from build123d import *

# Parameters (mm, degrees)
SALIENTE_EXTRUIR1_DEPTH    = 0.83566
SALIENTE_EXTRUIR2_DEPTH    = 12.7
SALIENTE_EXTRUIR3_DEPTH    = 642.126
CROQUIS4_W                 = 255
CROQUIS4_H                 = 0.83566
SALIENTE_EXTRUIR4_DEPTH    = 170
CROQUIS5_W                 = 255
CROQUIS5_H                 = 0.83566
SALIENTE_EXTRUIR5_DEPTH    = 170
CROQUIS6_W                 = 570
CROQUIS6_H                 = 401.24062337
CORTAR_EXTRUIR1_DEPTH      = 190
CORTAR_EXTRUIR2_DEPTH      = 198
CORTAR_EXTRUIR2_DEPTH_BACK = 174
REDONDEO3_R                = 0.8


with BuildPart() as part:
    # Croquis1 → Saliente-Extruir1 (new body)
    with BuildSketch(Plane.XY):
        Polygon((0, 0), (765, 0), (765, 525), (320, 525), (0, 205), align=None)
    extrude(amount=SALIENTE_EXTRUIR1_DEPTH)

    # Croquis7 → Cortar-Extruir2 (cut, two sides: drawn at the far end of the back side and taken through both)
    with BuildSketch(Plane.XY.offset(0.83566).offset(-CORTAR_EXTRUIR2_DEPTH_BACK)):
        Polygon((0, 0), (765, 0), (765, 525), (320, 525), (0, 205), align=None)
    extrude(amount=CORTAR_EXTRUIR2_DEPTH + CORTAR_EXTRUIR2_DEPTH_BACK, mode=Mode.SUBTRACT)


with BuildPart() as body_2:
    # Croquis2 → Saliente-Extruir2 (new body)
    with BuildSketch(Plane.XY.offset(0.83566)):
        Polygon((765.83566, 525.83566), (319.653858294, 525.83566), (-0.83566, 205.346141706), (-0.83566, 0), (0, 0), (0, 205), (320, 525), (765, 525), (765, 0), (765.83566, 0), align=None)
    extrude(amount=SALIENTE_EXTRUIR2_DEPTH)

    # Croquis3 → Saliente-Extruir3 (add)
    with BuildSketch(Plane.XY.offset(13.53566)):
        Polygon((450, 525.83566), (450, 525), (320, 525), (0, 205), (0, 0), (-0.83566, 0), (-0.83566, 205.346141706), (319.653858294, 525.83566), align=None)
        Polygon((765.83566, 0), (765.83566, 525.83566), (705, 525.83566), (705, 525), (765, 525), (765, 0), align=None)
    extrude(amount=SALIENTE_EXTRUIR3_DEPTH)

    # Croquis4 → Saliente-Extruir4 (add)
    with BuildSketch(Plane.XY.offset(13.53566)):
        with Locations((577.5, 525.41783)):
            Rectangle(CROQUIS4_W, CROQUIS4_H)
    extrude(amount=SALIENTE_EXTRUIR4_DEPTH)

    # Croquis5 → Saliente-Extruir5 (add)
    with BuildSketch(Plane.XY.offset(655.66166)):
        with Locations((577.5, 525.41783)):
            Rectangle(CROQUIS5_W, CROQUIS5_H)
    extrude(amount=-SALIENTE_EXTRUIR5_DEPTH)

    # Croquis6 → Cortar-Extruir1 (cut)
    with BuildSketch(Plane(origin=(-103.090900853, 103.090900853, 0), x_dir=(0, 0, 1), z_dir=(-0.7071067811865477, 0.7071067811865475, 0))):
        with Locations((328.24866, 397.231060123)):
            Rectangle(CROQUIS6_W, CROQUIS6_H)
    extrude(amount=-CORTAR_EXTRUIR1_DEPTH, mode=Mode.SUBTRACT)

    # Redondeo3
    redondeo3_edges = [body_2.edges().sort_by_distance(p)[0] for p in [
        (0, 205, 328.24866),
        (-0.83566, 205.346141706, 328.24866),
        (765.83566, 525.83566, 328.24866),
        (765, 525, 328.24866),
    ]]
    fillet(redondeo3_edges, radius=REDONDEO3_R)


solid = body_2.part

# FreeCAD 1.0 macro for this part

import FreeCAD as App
import Part
import Sketcher
from FreeCAD import Vector
Q = App.Units.Quantity


def edges_at(feature, points):
    """Names of the edges that pass closest to the given points."""
    edges = feature.Shape.Edges
    near = lambda p: min(range(len(edges)), key=lambda i: edges[i].distToShape(Part.Vertex(*p))[0])
    return sorted({f"Edge{near(p) + 1}" for p in points})

doc = App.newDocument("Part")
body = doc.addObject("PartDesign::Body", "Body")

# Sketch on XY plane
sketch1 = body.newObject("Sketcher::SketchObject", "Sketch")
sketch1.AttachmentSupport = (doc.getObject("XY_Plane"), [""])
sketch1.MapMode = "FlatFace"
sketch1.addGeometry([
    Part.LineSegment(Vector(0, 0, 0), Vector(765, 0, 0)),  # 0
    Part.LineSegment(Vector(765, 0, 0), Vector(765, 525, 0)),  # 1
    Part.LineSegment(Vector(765, 525, 0), Vector(320, 525, 0)),  # 2
    Part.LineSegment(Vector(320, 525, 0), Vector(0, 205, 0)),  # 3
    Part.LineSegment(Vector(0, 205, 0), Vector(0, 0, 0)),  # 4
], False)
sketch1.addConstraint([
    Sketcher.Constraint("Coincident", 0, 2, 1, 1),
    Sketcher.Constraint("Coincident", 1, 2, 2, 1),
    Sketcher.Constraint("Coincident", 2, 2, 3, 1),
    Sketcher.Constraint("Coincident", 3, 2, 4, 1),
    Sketcher.Constraint("Coincident", 4, 2, 0, 1),
    Sketcher.Constraint("Horizontal", 0),
    Sketcher.Constraint("Vertical", 1),
    Sketcher.Constraint("Horizontal", 2),
    Sketcher.Constraint("Vertical", 4),
    Sketcher.Constraint("Coincident", 4, 2, -1, 1),
    Sketcher.Constraint("DistanceX", 0, 1, 0, 2, Q("765 mm")),
    Sketcher.Constraint("DistanceX", 2, 2, 2, 1, Q("445 mm")),
    Sketcher.Constraint("DistanceY", 1, 1, 1, 2, Q("525 mm")),
    Sketcher.Constraint("DistanceY", 4, 2, 4, 1, Q("205 mm")),
])
pad1 = body.newObject("PartDesign::Pad", "Pad")
pad1.Profile = sketch1
pad1.Length = 0.83566

# Sketch on XY plane
sketch2 = body.newObject("Sketcher::SketchObject", "Sketch001")
sketch2.AttachmentSupport = (doc.getObject("XY_Plane"), [""])
sketch2.MapMode = "FlatFace"
sketch2.AttachmentOffset = App.Placement(Vector(0, 0, 0.83566), App.Rotation())
sketch2.addGeometry([
    Part.LineSegment(Vector(0, 0, 0), Vector(765, 0, 0)),  # 0
    Part.LineSegment(Vector(765, 0, 0), Vector(765, 525, 0)),  # 1
    Part.LineSegment(Vector(765, 525, 0), Vector(320, 525, 0)),  # 2
    Part.LineSegment(Vector(320, 525, 0), Vector(0, 205, 0)),  # 3
    Part.LineSegment(Vector(0, 205, 0), Vector(0, 0, 0)),  # 4
], False)
sketch2.addConstraint([
    Sketcher.Constraint("Coincident", 0, 2, 1, 1),
    Sketcher.Constraint("Coincident", 1, 2, 2, 1),
    Sketcher.Constraint("Coincident", 2, 2, 3, 1),
    Sketcher.Constraint("Coincident", 3, 2, 4, 1),
    Sketcher.Constraint("Coincident", 4, 2, 0, 1),
    Sketcher.Constraint("Horizontal", 0),
    Sketcher.Constraint("Vertical", 1),
    Sketcher.Constraint("Horizontal", 2),
    Sketcher.Constraint("Vertical", 4),
    Sketcher.Constraint("Coincident", 4, 2, -1, 1),
    Sketcher.Constraint("DistanceX", 0, 1, 0, 2, Q("765 mm")),
    Sketcher.Constraint("DistanceX", 2, 2, 2, 1, Q("445 mm")),
    Sketcher.Constraint("DistanceY", 1, 1, 1, 2, Q("525 mm")),
    Sketcher.Constraint("DistanceY", 4, 2, 4, 1, Q("205 mm")),
])
pocket1 = body.newObject("PartDesign::Pocket", "Pocket")
pocket1.Profile = sketch2
pocket1.Type = "ThroughAll"
pocket1.Midplane = True
body2 = doc.addObject("PartDesign::Body", "Body001")

# Sketch on XY plane
sketch3 = body2.newObject("Sketcher::SketchObject", "Sketch002")
sketch3.AttachmentSupport = (doc.getObject("XY_Plane001"), [""])
sketch3.MapMode = "FlatFace"
sketch3.AttachmentOffset = App.Placement(Vector(0, 0, 0.83566), App.Rotation())
sketch3.addGeometry([
    Part.LineSegment(Vector(765.8, 525.8, 0), Vector(319.7, 525.8, 0)),  # 0
    Part.LineSegment(Vector(319.7, 525.8, 0), Vector(-0.8, 205.3, 0)),  # 1
    Part.LineSegment(Vector(-0.8, 205.3, 0), Vector(-0.8, 0, 0)),  # 2
    Part.LineSegment(Vector(-0.8, 0, 0), Vector(0, 0, 0)),  # 3
    Part.LineSegment(Vector(0, 0, 0), Vector(0, 205, 0)),  # 4
    Part.LineSegment(Vector(0, 205, 0), Vector(320, 525, 0)),  # 5
    Part.LineSegment(Vector(320, 525, 0), Vector(765, 525, 0)),  # 6
    Part.LineSegment(Vector(765, 525, 0), Vector(765, 0, 0)),  # 7
    Part.LineSegment(Vector(765, 0, 0), Vector(765.8, 0, 0)),  # 8
    Part.LineSegment(Vector(765.8, 0, 0), Vector(765.8, 525.8, 0)),  # 9
], False)
sketch3.addConstraint([
    Sketcher.Constraint("Coincident", 0, 2, 1, 1),
    Sketcher.Constraint("Coincident", 1, 2, 2, 1),
    Sketcher.Constraint("Coincident", 2, 2, 3, 1),
    Sketcher.Constraint("Coincident", 3, 2, 4, 1),
    Sketcher.Constraint("Coincident", 4, 2, 5, 1),
    Sketcher.Constraint("Coincident", 5, 2, 6, 1),
    Sketcher.Constraint("Coincident", 6, 2, 7, 1),
    Sketcher.Constraint("Coincident", 7, 2, 8, 1),
    Sketcher.Constraint("Coincident", 8, 2, 9, 1),
    Sketcher.Constraint("Coincident", 9, 2, 0, 1),
    Sketcher.Constraint("Horizontal", 0),
    Sketcher.Constraint("Vertical", 2),
    Sketcher.Constraint("Horizontal", 3),
    Sketcher.Constraint("Vertical", 4),
    Sketcher.Constraint("Horizontal", 6),
    Sketcher.Constraint("Vertical", 7),
    Sketcher.Constraint("Horizontal", 8),
    Sketcher.Constraint("Vertical", 9),
    Sketcher.Constraint("Coincident", 3, 2, -1, 1),
    Sketcher.Constraint("PointOnObject", 7, 2, -1),
    Sketcher.Constraint("Parallel", 1, 5),
    Sketcher.Constraint("Equal", 3, 8),
    Sketcher.Constraint("DistanceX", 6, 1, 6, 2, Q("445 mm")),
    Sketcher.Constraint("DistanceY", 4, 1, 4, 2, Q("205 mm")),
    Sketcher.Constraint("DistanceY", 7, 2, 7, 1, Q("525 mm")),
    Sketcher.Constraint("Angle", 1, Q("-135 deg")),
    Sketcher.Constraint("DistanceX", 0, 2, 0, 1, Q("446.181802 mm")),
    Sketcher.Constraint("DistanceX", 3, 1, 3, 2, Q("0.83566 mm")),
    Sketcher.Constraint("DistanceY", 2, 2, 2, 1, Q("205.346142 mm")),
])
pad2 = body2.newObject("PartDesign::Pad", "Pad001")
pad2.Profile = sketch3
pad2.Length = 12.7

# Sketch on XY plane
sketch4 = body2.newObject("Sketcher::SketchObject", "Sketch003")
sketch4.AttachmentSupport = (doc.getObject("XY_Plane001"), [""])
sketch4.MapMode = "FlatFace"
sketch4.AttachmentOffset = App.Placement(Vector(0, 0, 13.53566), App.Rotation())
sketch4.addGeometry([
    Part.LineSegment(Vector(450, 525, 0), Vector(450, 525.8, 0)),  # 0
    Part.LineSegment(Vector(450, 525.8, 0), Vector(319.7, 525.8, 0)),  # 1
    Part.LineSegment(Vector(319.7, 525.8, 0), Vector(-0.8, 205.3, 0)),  # 2
    Part.LineSegment(Vector(-0.8, 205.3, 0), Vector(-0.8, 0, 0)),  # 3
    Part.LineSegment(Vector(-0.8, 0, 0), Vector(0, 0, 0)),  # 4
    Part.LineSegment(Vector(0, 0, 0), Vector(0, 205, 0)),  # 5
    Part.LineSegment(Vector(0, 205, 0), Vector(320, 525, 0)),  # 6
    Part.LineSegment(Vector(320, 525, 0), Vector(450, 525, 0)),  # 7
    Part.LineSegment(Vector(765.8, 0, 0), Vector(765.8, 525.8, 0)),  # 8
    Part.LineSegment(Vector(765.8, 525.8, 0), Vector(705, 525.8, 0)),  # 9
    Part.LineSegment(Vector(705, 525.8, 0), Vector(705, 525, 0)),  # 10
    Part.LineSegment(Vector(705, 525, 0), Vector(765, 525, 0)),  # 11
    Part.LineSegment(Vector(765, 525, 0), Vector(765, 0, 0)),  # 12
    Part.LineSegment(Vector(765, 0, 0), Vector(765.8, 0, 0)),  # 13
], False)
sketch4.addConstraint([
    Sketcher.Constraint("Coincident", 0, 2, 1, 1),
    Sketcher.Constraint("Coincident", 1, 2, 2, 1),
    Sketcher.Constraint("Coincident", 2, 2, 3, 1),
    Sketcher.Constraint("Coincident", 3, 2, 4, 1),
    Sketcher.Constraint("Coincident", 4, 2, 5, 1),
    Sketcher.Constraint("Coincident", 5, 2, 6, 1),
    Sketcher.Constraint("Coincident", 6, 2, 7, 1),
    Sketcher.Constraint("Coincident", 7, 2, 0, 1),
    Sketcher.Constraint("Coincident", 8, 2, 9, 1),
    Sketcher.Constraint("Coincident", 9, 2, 10, 1),
    Sketcher.Constraint("Coincident", 10, 2, 11, 1),
    Sketcher.Constraint("Coincident", 11, 2, 12, 1),
    Sketcher.Constraint("Coincident", 12, 2, 13, 1),
    Sketcher.Constraint("Coincident", 13, 2, 8, 1),
    Sketcher.Constraint("Vertical", 0),
    Sketcher.Constraint("Horizontal", 1),
    Sketcher.Constraint("Vertical", 3),
    Sketcher.Constraint("Horizontal", 4),
    Sketcher.Constraint("Vertical", 5),
    Sketcher.Constraint("Horizontal", 7),
    Sketcher.Constraint("Vertical", 8),
    Sketcher.Constraint("Horizontal", 9),
    Sketcher.Constraint("Vertical", 10),
    Sketcher.Constraint("Horizontal", 11),
    Sketcher.Constraint("Vertical", 12),
    Sketcher.Constraint("Horizontal", 13),
    Sketcher.Constraint("Coincident", 4, 2, -1, 1),
    Sketcher.Constraint("PointOnObject", 12, 2, -1),
    Sketcher.Constraint("Parallel", 2, 6),
    Sketcher.Constraint("Horizontal", 1, 2, 8, 2),
    Sketcher.Constraint("Horizontal", 7, 2, 10, 2),
    Sketcher.Constraint("Equal", 4, 13),
    Sketcher.Constraint("Equal", 13, 0),
    Sketcher.Constraint("DistanceX", 7, 1, 7, 2, Q("130 mm")),
    Sketcher.Constraint("DistanceX", 11, 1, 11, 2, Q("60 mm")),
    Sketcher.Constraint("DistanceY", 5, 1, 5, 2, Q("205 mm")),
    Sketcher.Constraint("DistanceY", 12, 2, 12, 1, Q("525 mm")),
    Sketcher.Constraint("Angle", 2, Q("-135 deg")),
    Sketcher.Constraint("DistanceX", -1, 1, 9, 2, Q("705 mm")),
    Sketcher.Constraint("DistanceX", 1, 2, 1, 1, Q("130.346142 mm")),
    Sketcher.Constraint("DistanceX", 4, 1, 4, 2, Q("0.83566 mm")),
])
pad3 = body2.newObject("PartDesign::Pad", "Pad002")
pad3.Profile = sketch4
pad3.Length = 642.126

# Sketch on XY plane
sketch5 = body2.newObject("Sketcher::SketchObject", "Sketch004")
sketch5.AttachmentSupport = (doc.getObject("XY_Plane001"), [""])
sketch5.MapMode = "FlatFace"
sketch5.AttachmentOffset = App.Placement(Vector(0, 0, 13.53566), App.Rotation())
sketch5.addGeometry([
    Part.LineSegment(Vector(450, 525.8, 0), Vector(450, 525, 0)),
    Part.LineSegment(Vector(450, 525, 0), Vector(705, 525, 0)),
    Part.LineSegment(Vector(705, 525, 0), Vector(705, 525.8, 0)),
    Part.LineSegment(Vector(705, 525.8, 0), Vector(450, 525.8, 0)),
], False)
sketch5.addConstraint([
    Sketcher.Constraint("Coincident", 0, 2, 1, 1),
    Sketcher.Constraint("Coincident", 1, 2, 2, 1),
    Sketcher.Constraint("Coincident", 2, 2, 3, 1),
    Sketcher.Constraint("Coincident", 3, 2, 0, 1),
    Sketcher.Constraint("Vertical", 0),
    Sketcher.Constraint("Horizontal", 1),
    Sketcher.Constraint("Vertical", 2),
    Sketcher.Constraint("Horizontal", 3),
    Sketcher.Constraint("DistanceX", 1, 1, 1, 2, Q("255 mm")),
    Sketcher.Constraint("DistanceX", -1, 1, 0, 2, Q("450 mm")),
    Sketcher.Constraint("DistanceY", -1, 1, 0, 2, Q("525 mm")),
    Sketcher.Constraint("DistanceY", 0, 2, 0, 1, Q("0.83566 mm")),
])
pad4 = body2.newObject("PartDesign::Pad", "Pad003")
pad4.Profile = sketch5
pad4.Length = 170

# Sketch on XY plane
sketch6 = body2.newObject("Sketcher::SketchObject", "Sketch005")
sketch6.AttachmentSupport = (doc.getObject("XY_Plane001"), [""])
sketch6.MapMode = "FlatFace"
sketch6.AttachmentOffset = App.Placement(Vector(0, 0, 655.66166), App.Rotation())
sketch6.addGeometry([
    Part.LineSegment(Vector(450, 525.8, 0), Vector(450, 525, 0)),
    Part.LineSegment(Vector(450, 525, 0), Vector(705, 525, 0)),
    Part.LineSegment(Vector(705, 525, 0), Vector(705, 525.8, 0)),
    Part.LineSegment(Vector(705, 525.8, 0), Vector(450, 525.8, 0)),
], False)
sketch6.addConstraint([
    Sketcher.Constraint("Coincident", 0, 2, 1, 1),
    Sketcher.Constraint("Coincident", 1, 2, 2, 1),
    Sketcher.Constraint("Coincident", 2, 2, 3, 1),
    Sketcher.Constraint("Coincident", 3, 2, 0, 1),
    Sketcher.Constraint("Vertical", 0),
    Sketcher.Constraint("Horizontal", 1),
    Sketcher.Constraint("Vertical", 2),
    Sketcher.Constraint("Horizontal", 3),
    Sketcher.Constraint("DistanceX", 1, 1, 1, 2, Q("255 mm")),
    Sketcher.Constraint("DistanceX", -1, 1, 0, 2, Q("450 mm")),
    Sketcher.Constraint("DistanceY", -1, 1, 0, 2, Q("525 mm")),
    Sketcher.Constraint("DistanceY", 0, 2, 0, 1, Q("0.83566 mm")),
])
pad5 = body2.newObject("PartDesign::Pad", "Pad004")
pad5.Profile = sketch6
pad5.Length = 170
pad5.Reversed = True

# Sketch on an angled plane
sketch7 = body2.newObject("Sketcher::SketchObject", "Sketch006")
sketch7.Placement = App.Placement(Vector(-103.090901, 103.090901, 0), App.Rotation(Vector(0, 0, 1), Vector(0.707106781, 0.707106781, 0), Vector(-0.707106781, 0.707106781, 0), "ZXY"))
sketch7.addGeometry([
    Part.LineSegment(Vector(43, 598, 0), Vector(43, 197, 0)),
    Part.LineSegment(Vector(43, 197, 0), Vector(613, 197, 0)),
    Part.LineSegment(Vector(613, 197, 0), Vector(613, 598, 0)),
    Part.LineSegment(Vector(613, 598, 0), Vector(43, 598, 0)),
], False)
sketch7.addConstraint([
    Sketcher.Constraint("Coincident", 0, 2, 1, 1),
    Sketcher.Constraint("Coincident", 1, 2, 2, 1),
    Sketcher.Constraint("Coincident", 2, 2, 3, 1),
    Sketcher.Constraint("Coincident", 3, 2, 0, 1),
    Sketcher.Constraint("Vertical", 0),
    Sketcher.Constraint("Horizontal", 1),
    Sketcher.Constraint("Vertical", 2),
    Sketcher.Constraint("Horizontal", 3),
    Sketcher.Constraint("DistanceX", 1, 1, 1, 2, Q("570 mm")),
    Sketcher.Constraint("DistanceY", 0, 2, 0, 1, Q("401.240623 mm")),
    Sketcher.Constraint("DistanceX", -1, 1, 0, 2, Q("43.24866 mm")),
    Sketcher.Constraint("DistanceY", -1, 1, 0, 2, Q("196.610748 mm")),
])
pocket2 = body2.newObject("PartDesign::Pocket", "Pocket001")
pocket2.Profile = sketch7
pocket2.Length = 190
doc.recompute()

fillet = body2.newObject("PartDesign::Fillet", "Fillet")
fillet.Base = (pocket2, edges_at(pocket2, [
    (0, 205, 328.249),
    (-0.836, 205.346, 328.249),
    (765.836, 525.836, 328.249),
    (765, 525, 328.249),
]))
fillet.Radius = 0.8

doc.recompute()
